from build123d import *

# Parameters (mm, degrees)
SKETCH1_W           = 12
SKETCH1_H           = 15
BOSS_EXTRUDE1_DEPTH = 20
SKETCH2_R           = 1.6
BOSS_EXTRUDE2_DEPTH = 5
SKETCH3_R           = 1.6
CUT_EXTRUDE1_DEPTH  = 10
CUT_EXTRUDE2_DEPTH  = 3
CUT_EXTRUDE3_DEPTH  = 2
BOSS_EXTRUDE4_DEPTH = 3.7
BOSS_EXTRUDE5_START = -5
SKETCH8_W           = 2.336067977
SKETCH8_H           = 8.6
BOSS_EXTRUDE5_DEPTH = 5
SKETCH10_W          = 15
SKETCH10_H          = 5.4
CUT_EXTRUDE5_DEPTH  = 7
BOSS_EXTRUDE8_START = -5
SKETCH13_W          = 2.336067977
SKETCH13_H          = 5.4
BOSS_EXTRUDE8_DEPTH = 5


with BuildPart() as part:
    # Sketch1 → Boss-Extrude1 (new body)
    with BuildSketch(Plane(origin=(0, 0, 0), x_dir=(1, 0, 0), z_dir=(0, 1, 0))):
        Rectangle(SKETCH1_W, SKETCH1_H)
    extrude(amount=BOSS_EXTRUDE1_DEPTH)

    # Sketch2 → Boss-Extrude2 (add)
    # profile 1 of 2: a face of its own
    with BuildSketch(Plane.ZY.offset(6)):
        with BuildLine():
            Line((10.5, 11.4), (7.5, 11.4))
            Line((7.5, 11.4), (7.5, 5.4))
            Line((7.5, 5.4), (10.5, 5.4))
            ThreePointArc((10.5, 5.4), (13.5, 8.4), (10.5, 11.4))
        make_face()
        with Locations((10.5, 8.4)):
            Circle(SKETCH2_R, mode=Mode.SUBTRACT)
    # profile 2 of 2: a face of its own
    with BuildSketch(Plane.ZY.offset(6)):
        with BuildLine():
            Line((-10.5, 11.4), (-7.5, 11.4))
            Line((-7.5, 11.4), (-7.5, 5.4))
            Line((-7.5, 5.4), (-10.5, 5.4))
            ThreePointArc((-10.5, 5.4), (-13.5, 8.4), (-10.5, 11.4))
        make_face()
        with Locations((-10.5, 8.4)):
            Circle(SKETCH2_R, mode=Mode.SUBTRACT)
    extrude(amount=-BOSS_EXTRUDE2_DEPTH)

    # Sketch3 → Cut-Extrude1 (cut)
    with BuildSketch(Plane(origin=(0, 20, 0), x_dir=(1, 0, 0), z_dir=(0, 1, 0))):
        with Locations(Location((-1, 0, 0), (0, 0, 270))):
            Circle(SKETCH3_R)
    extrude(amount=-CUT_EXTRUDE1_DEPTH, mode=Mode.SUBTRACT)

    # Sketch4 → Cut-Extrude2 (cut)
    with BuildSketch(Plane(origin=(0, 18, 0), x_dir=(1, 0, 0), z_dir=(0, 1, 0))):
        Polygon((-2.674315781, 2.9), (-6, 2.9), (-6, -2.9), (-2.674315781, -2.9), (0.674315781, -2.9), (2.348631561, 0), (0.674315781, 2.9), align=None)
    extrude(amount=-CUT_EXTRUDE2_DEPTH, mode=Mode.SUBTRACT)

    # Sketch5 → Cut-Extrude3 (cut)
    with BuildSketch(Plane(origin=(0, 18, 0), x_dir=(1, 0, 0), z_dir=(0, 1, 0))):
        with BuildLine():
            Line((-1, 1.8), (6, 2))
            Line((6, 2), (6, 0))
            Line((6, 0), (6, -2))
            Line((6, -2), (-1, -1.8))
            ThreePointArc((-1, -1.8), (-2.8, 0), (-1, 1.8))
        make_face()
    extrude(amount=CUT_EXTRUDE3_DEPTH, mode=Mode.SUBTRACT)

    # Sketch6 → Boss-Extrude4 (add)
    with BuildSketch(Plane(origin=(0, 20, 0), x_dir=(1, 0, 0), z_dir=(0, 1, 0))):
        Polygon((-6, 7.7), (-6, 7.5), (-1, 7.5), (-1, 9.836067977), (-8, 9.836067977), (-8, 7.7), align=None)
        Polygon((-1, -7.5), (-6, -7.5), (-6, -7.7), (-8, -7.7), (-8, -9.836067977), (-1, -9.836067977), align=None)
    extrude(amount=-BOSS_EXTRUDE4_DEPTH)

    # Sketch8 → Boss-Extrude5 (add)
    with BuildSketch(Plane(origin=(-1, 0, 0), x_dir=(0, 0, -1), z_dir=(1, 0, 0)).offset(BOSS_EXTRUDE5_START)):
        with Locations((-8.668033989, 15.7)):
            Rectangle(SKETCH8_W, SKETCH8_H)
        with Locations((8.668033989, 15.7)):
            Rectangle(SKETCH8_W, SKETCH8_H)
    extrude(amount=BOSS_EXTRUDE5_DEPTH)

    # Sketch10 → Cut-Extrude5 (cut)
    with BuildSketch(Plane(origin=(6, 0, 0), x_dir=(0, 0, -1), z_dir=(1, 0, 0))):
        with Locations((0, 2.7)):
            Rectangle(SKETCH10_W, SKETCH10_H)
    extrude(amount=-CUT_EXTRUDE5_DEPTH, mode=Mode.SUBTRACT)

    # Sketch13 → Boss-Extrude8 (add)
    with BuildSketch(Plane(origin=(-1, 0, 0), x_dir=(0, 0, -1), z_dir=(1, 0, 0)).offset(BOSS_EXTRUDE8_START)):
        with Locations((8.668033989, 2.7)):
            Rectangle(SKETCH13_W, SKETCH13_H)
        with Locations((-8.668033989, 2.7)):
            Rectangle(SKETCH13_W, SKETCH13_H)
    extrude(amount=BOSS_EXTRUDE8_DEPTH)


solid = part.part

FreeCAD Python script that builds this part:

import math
import FreeCAD as App
import Part
import Sketcher

V = App.Vector
Q = App.Units.Quantity

doc = App.newDocument("Part")
body = doc.addObject("PartDesign::Body", "Body")

# Sketch on XZ plane
sketch1 = body.newObject("Sketcher::SketchObject", "Sketch")
sketch1.AttachmentSupport = (doc.getObject("XZ_Plane"), [""])
sketch1.MapMode = "FlatFace"
sketch1.addGeometry(Part.LineSegment(V(-6, -8, 0), V(-6, 8, 0)), False)
sketch1.addGeometry(Part.LineSegment(V(-6, 8, 0), V(6, 8, 0)), False)
sketch1.addGeometry(Part.LineSegment(V(6, 8, 0), V(6, -8, 0)), False)
sketch1.addGeometry(Part.LineSegment(V(6, -8, 0), V(-6, -8, 0)), False)
sketch1.addConstraint(Sketcher.Constraint("Coincident", 0, 2, 1, 1))
sketch1.addConstraint(Sketcher.Constraint("Coincident", 1, 2, 2, 1))
sketch1.addConstraint(Sketcher.Constraint("Coincident", 2, 2, 3, 1))
sketch1.addConstraint(Sketcher.Constraint("Coincident", 3, 2, 0, 1))
sketch1.addConstraint(Sketcher.Constraint("Vertical", 0))
sketch1.addConstraint(Sketcher.Constraint("Horizontal", 1))
sketch1.addConstraint(Sketcher.Constraint("Vertical", 2))
sketch1.addConstraint(Sketcher.Constraint("Horizontal", 3))
sketch1.addConstraint(Sketcher.Constraint("Symmetric", 0, 2, 2, 2, -1, 1))
sketch1.addConstraint(Sketcher.Constraint("DistanceX", 1, 1, 1, 2, 12.0))
sketch1.addConstraint(Sketcher.Constraint("DistanceY", 0, 1, 0, 2, 15.0))
pad1 = body.newObject("PartDesign::Pad", "Pad")
pad1.Profile = sketch1
pad1.Length = 20
pad1.Reversed = True

# Sketch on YZ plane
sketch2 = body.newObject("Sketcher::SketchObject", "Sketch001")
sketch2.AttachmentSupport = (doc.getObject("YZ_Plane"), [""])
sketch2.MapMode = "FlatFace"
sketch2.AttachmentOffset = App.Placement(V(0, 0, -6), App.Rotation())
sketch2.addGeometry(Part.LineSegment(V(11.4, 10.5, 0), V(11.4, 7.5, 0)), False)
sketch2.addGeometry(Part.LineSegment(V(11.4, 7.5, 0), V(5.4, 7.5, 0)), False)
sketch2.addGeometry(Part.LineSegment(V(5.4, 7.5, 0), V(5.4, 10.5, 0)), False)
sketch2.addGeometry(Part.ArcOfCircle(Part.Circle(V(8.4, 10.5, 0), V(0, 0, 1), 3), math.radians(0), math.radians(180)), False)
sketch2.addGeometry(Part.Circle(V(8.4, 10.5, 0), V(0, 0, 1), 1.6), False)
sketch2.addGeometry(Part.LineSegment(V(11.4, -7.5, 0), V(11.4, -10.5, 0)), False)
sketch2.addGeometry(Part.ArcOfCircle(Part.Circle(V(8.4, -10.5, 0), V(0, 0, 1), 3), math.radians(180), math.radians(360)), False)
sketch2.addGeometry(Part.LineSegment(V(5.4, -10.5, 0), V(5.4, -7.5, 0)), False)
sketch2.addGeometry(Part.LineSegment(V(5.4, -7.5, 0), V(11.4, -7.5, 0)), False)
sketch2.addGeometry(Part.Circle(V(8.4, -10.5, 0), V(0, 0, 1), 1.6), False)
sketch2.addConstraint(Sketcher.Constraint("Coincident", 0, 2, 1, 1))
sketch2.addConstraint(Sketcher.Constraint("Coincident", 1, 2, 2, 1))
sketch2.addConstraint(Sketcher.Constraint("Tangent", 2, 2, 3, 2))
sketch2.addConstraint(Sketcher.Constraint("Tangent", 3, 1, 0, 1))
sketch2.addConstraint(Sketcher.Constraint("Tangent", 5, 2, 6, 2))
sketch2.addConstraint(Sketcher.Constraint("Tangent", 6, 1, 7, 1))
sketch2.addConstraint(Sketcher.Constraint("Coincident", 7, 2, 8, 1))
sketch2.addConstraint(Sketcher.Constraint("Coincident", 8, 2, 5, 1))
sketch2.addConstraint(Sketcher.Constraint("Vertical", 0))
sketch2.addConstraint(Sketcher.Constraint("Horizontal", 1))
sketch2.addConstraint(Sketcher.Constraint("Vertical", 2))
sketch2.addConstraint(Sketcher.Constraint("Vertical", 5))
sketch2.addConstraint(Sketcher.Constraint("Vertical", 7))
sketch2.addConstraint(Sketcher.Constraint("Horizontal", 8))
sketch2.addConstraint(Sketcher.Constraint("Coincident", 4, 3, 3, 3))
sketch2.addConstraint(Sketcher.Constraint("Coincident", 9, 3, 6, 3))
sketch2.addConstraint(Sketcher.Constraint("Equal", 3, 6))
sketch2.addConstraint(Sketcher.Constraint("Equal", 4, 9))
sketch2.addConstraint(Sketcher.Constraint("Symmetric", 3, 3, 6, 3, -1))
sketch2.addConstraint(Sketcher.Constraint("Equal", 2, 5))
sketch2.addConstraint(Sketcher.Constraint("Radius", 3, 3.0))
sketch2.addConstraint(Sketcher.Constraint("Diameter", 4, 3.2))
sketch2.addConstraint(Sketcher.Constraint("DistanceY", 0, 2, 0, 1, 3.0))
sketch2.addConstraint(Sketcher.Constraint("DistanceY", 6, 3, 3, 3, 21.0))
sketch2.addConstraint(Sketcher.Constraint("DistanceX", -1, 1, 3, 3, 8.4))
pad2 = body.newObject("PartDesign::Pad", "Pad001")
pad2.Profile = sketch2
pad2.Length = 5

# Sketch on XZ plane
sketch3 = body.newObject("Sketcher::SketchObject", "Sketch002")
sketch3.AttachmentSupport = (doc.getObject("XZ_Plane"), [""])
sketch3.MapMode = "FlatFace"
sketch3.AttachmentOffset = App.Placement(V(0, 0, -20), App.Rotation())
sketch3.addGeometry(Part.Circle(V(-1, 0, 0), V(0, 0, 1), 1.6), False)
sketch3.addConstraint(Sketcher.Constraint("PointOnObject", 0, 3, -1))
sketch3.addConstraint(Sketcher.Constraint("Diameter", 0, 3.2))
sketch3.addConstraint(Sketcher.Constraint("DistanceX", 0, 3, -1, 1, 1.0))
pocket1 = body.newObject("PartDesign::Pocket", "Pocket")
pocket1.Profile = sketch3
pocket1.Length = 10
pocket1.Reversed = True

# Sketch on XZ plane
sketch4 = body.newObject("Sketcher::SketchObject", "Sketch003")
sketch4.AttachmentSupport = (doc.getObject("XZ_Plane"), [""])
sketch4.MapMode = "FlatFace"
sketch4.AttachmentOffset = App.Placement(V(0, 0, -18), App.Rotation())
sketch4.addGeometry(Part.LineSegment(V(-6, -2.9, 0), V(-6, 2.9, 0)), False)
sketch4.addGeometry(Part.LineSegment(V(-6, 2.9, 0), V(0.7, 2.9, 0)), False)
sketch4.addGeometry(Part.LineSegment(V(0.7, 2.9, 0), V(2.3, 0, 0)), False)
sketch4.addGeometry(Part.LineSegment(V(2.3, 0, 0), V(0.7, -2.9, 0)), False)
sketch4.addGeometry(Part.LineSegment(V(0.7, -2.9, 0), V(-6, -2.9, 0)), False)
sketch4.addConstraint(Sketcher.Constraint("Coincident", 0, 2, 1, 1))
sketch4.addConstraint(Sketcher.Constraint("Coincident", 1, 2, 2, 1))
sketch4.addConstraint(Sketcher.Constraint("Coincident", 2, 2, 3, 1))
sketch4.addConstraint(Sketcher.Constraint("Coincident", 3, 2, 4, 1))
sketch4.addConstraint(Sketcher.Constraint("Coincident", 4, 2, 0, 1))
sketch4.addConstraint(Sketcher.Constraint("Vertical", 0))
sketch4.addConstraint(Sketcher.Constraint("Horizontal", 1))
sketch4.addConstraint(Sketcher.Constraint("Horizontal", 4))
sketch4.addConstraint(Sketcher.Constraint("Symmetric", 1, 2, 3, 2, -1))
sketch4.addConstraint(Sketcher.Constraint("PointOnObject", 2, 2, -1))
sketch4.addConstraint(Sketcher.Constraint("Angle", 2, Q("-60 deg")))
sketch4.addConstraint(Sketcher.Constraint("DistanceY", 0, 1, 0, 2, 5.8))
sketch4.addConstraint(Sketcher.Constraint("DistanceX", 0, 2, -1, 1, 6.0))
sketch4.addConstraint(Sketcher.Constraint("DistanceX", 1, 1, 1, 2, 6.674316))
pocket2 = body.newObject("PartDesign::Pocket", "Pocket001")
pocket2.Profile = sketch4
pocket2.Length = 3
pocket2.Reversed = True

# Sketch on XZ plane
sketch5 = body.newObject("Sketcher::SketchObject", "Sketch004")
sketch5.AttachmentSupport = (doc.getObject("XZ_Plane"), [""])
sketch5.MapMode = "FlatFace"
sketch5.AttachmentOffset = App.Placement(V(0, 0, -18), App.Rotation())
sketch5.addGeometry(Part.LineSegment(V(6, -2, 0), V(-1, -1.8, 0)), False)
sketch5.addGeometry(Part.ArcOfCircle(Part.Circle(V(-1, 0, 0), V(0, 0, 1), 1.8), math.radians(90), math.radians(270)), False)
sketch5.addGeometry(Part.LineSegment(V(-1, 1.8, 0), V(6, 2, 0)), False)
sketch5.addGeometry(Part.LineSegment(V(6, 2, 0), V(6, -2, 0)), False)
sketch5.addConstraint(Sketcher.Constraint("Coincident", 0, 2, 1, 2))
sketch5.addConstraint(Sketcher.Constraint("Coincident", 1, 1, 2, 1))
sketch5.addConstraint(Sketcher.Constraint("Coincident", 2, 2, 3, 1))
sketch5.addConstraint(Sketcher.Constraint("Coincident", 3, 2, 0, 1))
sketch5.addConstraint(Sketcher.Constraint("Vertical", 3))
sketch5.addConstraint(Sketcher.Constraint("Symmetric", 0, 2, 1, 1, -1))
sketch5.addConstraint(Sketcher.Constraint("Vertical", 1, 3, 0, 2))
sketch5.addConstraint(Sketcher.Constraint("Equal", 0, 2))
sketch5.addConstraint(Sketcher.Constraint("Radius", 1, 1.8))
sketch5.addConstraint(Sketcher.Constraint("DistanceY", 3, 2, 3, 1, 4.0))
sketch5.addConstraint(Sketcher.Constraint("DistanceX", 1, 3, -1, 1, 1.0))
sketch5.addConstraint(Sketcher.Constraint("DistanceX", -1, 1, 2, 2, 6.0))
pocket3 = body.newObject("PartDesign::Pocket", "Pocket002")
pocket3.Profile = sketch5
pocket3.Length = 2

# Sketch on XZ plane
sketch6 = body.newObject("Sketcher::SketchObject", "Sketch005")
sketch6.AttachmentSupport = (doc.getObject("XZ_Plane"), [""])
sketch6.MapMode = "FlatFace"
sketch6.AttachmentOffset = App.Placement(V(0, 0, -20), App.Rotation())
sketch6.addGeometry(Part.LineSegment(V(-6, -7.7, 0), V(-6, -7.5, 0)), False)
sketch6.addGeometry(Part.LineSegment(V(-6, -7.5, 0), V(-1, -7.5, 0)), False)
sketch6.addGeometry(Part.LineSegment(V(-1, -7.5, 0), V(-1, -9.84, 0)), False)
sketch6.addGeometry(Part.LineSegment(V(-1, -9.84, 0), V(-8, -9.84, 0)), False)
sketch6.addGeometry(Part.LineSegment(V(-8, -9.84, 0), V(-8, -7.7, 0)), False)
sketch6.addGeometry(Part.LineSegment(V(-8, -7.7, 0), V(-6, -7.7, 0)), False)
sketch6.addGeometry(Part.LineSegment(V(-1, 7.5, 0), V(-6, 7.5, 0)), False)
sketch6.addGeometry(Part.LineSegment(V(-6, 7.5, 0), V(-6, 7.7, 0)), False)
sketch6.addGeometry(Part.LineSegment(V(-6, 7.7, 0), V(-8, 7.7, 0)), False)
sketch6.addGeometry(Part.LineSegment(V(-8, 7.7, 0), V(-8, 9.84, 0)), False)
sketch6.addGeometry(Part.LineSegment(V(-8, 9.84, 0), V(-1, 9.84, 0)), False)
sketch6.addGeometry(Part.LineSegment(V(-1, 9.84, 0), V(-1, 7.5, 0)), False)
sketch6.addConstraint(Sketcher.Constraint("Coincident", 0, 2, 1, 1))
sketch6.addConstraint(Sketcher.Constraint("Coincident", 1, 2, 2, 1))
sketch6.addConstraint(Sketcher.Constraint("Coincident", 2, 2, 3, 1))
sketch6.addConstraint(Sketcher.Constraint("Coincident", 3, 2, 4, 1))
sketch6.addConstraint(Sketcher.Constraint("Coincident", 4, 2, 5, 1))
sketch6.addConstraint(Sketcher.Constraint("Coincident", 5, 2, 0, 1))
sketch6.addConstraint(Sketcher.Constraint("Coincident", 6, 2, 7, 1))
sketch6.addConstraint(Sketcher.Constraint("Coincident", 7, 2, 8, 1))
sketch6.addConstraint(Sketcher.Constraint("Coincident", 8, 2, 9, 1))
sketch6.addConstraint(Sketcher.Constraint("Coincident", 9, 2, 10, 1))
sketch6.addConstraint(Sketcher.Constraint("Coincident", 10, 2, 11, 1))
sketch6.addConstraint(Sketcher.Constraint("Coincident", 11, 2, 6, 1))
sketch6.addConstraint(Sketcher.Constraint("Vertical", 0))
sketch6.addConstraint(Sketcher.Constraint("Horizontal", 1))
sketch6.addConstraint(Sketcher.Constraint("Vertical", 2))
sketch6.addConstraint(Sketcher.Constraint("Horizontal", 3))
sketch6.addConstraint(Sketcher.Constraint("Vertical", 4))
sketch6.addConstraint(Sketcher.Constraint("Horizontal", 5))
sketch6.addConstraint(Sketcher.Constraint("Horizontal", 6))
sketch6.addConstraint(Sketcher.Constraint("Vertical", 7))
sketch6.addConstraint(Sketcher.Constraint("Horizontal", 8))
sketch6.addConstraint(Sketcher.Constraint("Vertical", 9))
sketch6.addConstraint(Sketcher.Constraint("Horizontal", 10))
sketch6.addConstraint(Sketcher.Constraint("Vertical", 11))
sketch6.addConstraint(Sketcher.Constraint("Symmetric", 0, 2, 6, 2, -1))
sketch6.addConstraint(Sketcher.Constraint("Symmetric", 4, 2, 8, 2, -1))
sketch6.addConstraint(Sketcher.Constraint("Symmetric", 2, 2, 10, 2, -1))
sketch6.addConstraint(Sketcher.Constraint("DistanceX", 1, 1, 1, 2, 5.0))
sketch6.addConstraint(Sketcher.Constraint("DistanceX", 3, 2, 3, 1, 7.0))
sketch6.addConstraint(Sketcher.Constraint("DistanceY", 0, 1, 0, 2, 0.2))
sketch6.addConstraint(Sketcher.Constraint("DistanceX", 0, 2, -1, 1, 6.0))
sketch6.addConstraint(Sketcher.Constraint("DistanceY", 0, 2, 6, 2, 15.0))
sketch6.addConstraint(Sketcher.Constraint("DistanceY", 2, 2, 2, 1, 2.336068))
pad3 = body.newObject("PartDesign::Pad", "Pad002")
pad3.Profile = sketch6
pad3.Length = 3.7

# Sketch on YZ plane
sketch7 = body.newObject("Sketcher::SketchObject", "Sketch006")
sketch7.AttachmentSupport = (doc.getObject("YZ_Plane"), [""])
sketch7.MapMode = "FlatFace"
sketch7.AttachmentOffset = App.Placement(V(0, 0, -6), App.Rotation())
sketch7.addGeometry(Part.LineSegment(V(20, 9.8, 0), V(11.4, 9.8, 0)), False)
sketch7.addGeometry(Part.LineSegment(V(11.4, 9.8, 0), V(11.4, 7.5, 0)), False)
sketch7.addGeometry(Part.LineSegment(V(11.4, 7.5, 0), V(20, 7.5, 0)), False)
sketch7.addGeometry(Part.LineSegment(V(20, 7.5, 0), V(20, 9.8, 0)), False)
sketch7.addGeometry(Part.LineSegment(V(20, -7.5, 0), V(11.4, -7.5, 0)), False)
sketch7.addGeometry(Part.LineSegment(V(11.4, -7.5, 0), V(11.4, -9.8, 0)), False)
sketch7.addGeometry(Part.LineSegment(V(11.4, -9.8, 0), V(20, -9.8, 0)), False)
sketch7.addGeometry(Part.LineSegment(V(20, -9.8, 0), V(20, -7.5, 0)), False)
sketch7.addConstraint(Sketcher.Constraint("Coincident", 0, 2, 1, 1))
sketch7.addConstraint(Sketcher.Constraint("Coincident", 1, 2, 2, 1))
sketch7.addConstraint(Sketcher.Constraint("Coincident", 2, 2, 3, 1))
sketch7.addConstraint(Sketcher.Constraint("Coincident", 3, 2, 0, 1))
sketch7.addConstraint(Sketcher.Constraint("Coincident", 4, 2, 5, 1))
sketch7.addConstraint(Sketcher.Constraint("Coincident", 5, 2, 6, 1))
sketch7.addConstraint(Sketcher.Constraint("Coincident", 6, 2, 7, 1))
sketch7.addConstraint(Sketcher.Constraint("Coincident", 7, 2, 4, 1))
sketch7.addConstraint(Sketcher.Constraint("Horizontal", 0))
sketch7.addConstraint(Sketcher.Constraint("Vertical", 1))
sketch7.addConstraint(Sketcher.Constraint("Horizontal", 2))
sketch7.addConstraint(Sketcher.Constraint("Vertical", 3))
sketch7.addConstraint(Sketcher.Constraint("Horizontal", 4))
sketch7.addConstraint(Sketcher.Constraint("Vertical", 5))
sketch7.addConstraint(Sketcher.Constraint("Horizontal", 6))
sketch7.addConstraint(Sketcher.Constraint("Vertical", 7))
sketch7.addConstraint(Sketcher.Constraint("Symmetric", 1, 2, 4, 2, -1))
sketch7.addConstraint(Sketcher.Constraint("Symmetric", 3, 2, 6, 2, -1))
sketch7.addConstraint(Sketcher.Constraint("DistanceX", 0, 2, 0, 1, 8.6))
sketch7.addConstraint(Sketcher.Constraint("DistanceX", -1, 1, 2, 2, 20.0))
sketch7.addConstraint(Sketcher.Constraint("DistanceY", 4, 2, 1, 2, 15.0))
sketch7.addConstraint(Sketcher.Constraint("DistanceY", 1, 2, 1, 1, 2.336068))
pad4 = body.newObject("PartDesign::Pad", "Pad003")
pad4.Profile = sketch7
pad4.Length = 5

# Sketch on YZ plane
sketch8 = body.newObject("Sketcher::SketchObject", "Sketch007")
sketch8.AttachmentSupport = (doc.getObject("YZ_Plane"), [""])
sketch8.MapMode = "FlatFace"
sketch8.AttachmentOffset = App.Placement(V(0, 0, 6), App.Rotation())
sketch8.addGeometry(Part.LineSegment(V(5, 8, 0), V(0, 8, 0)), False)
sketch8.addGeometry(Part.LineSegment(V(0, 8, 0), V(0, -8, 0)), False)
sketch8.addGeometry(Part.LineSegment(V(0, -8, 0), V(5, -8, 0)), False)
sketch8.addGeometry(Part.LineSegment(V(5, -8, 0), V(5, 8, 0)), False)
sketch8.addConstraint(Sketcher.Constraint("Coincident", 0, 2, 1, 1))
sketch8.addConstraint(Sketcher.Constraint("Coincident", 1, 2, 2, 1))
sketch8.addConstraint(Sketcher.Constraint("Coincident", 2, 2, 3, 1))
sketch8.addConstraint(Sketcher.Constraint("Coincident", 3, 2, 0, 1))
sketch8.addConstraint(Sketcher.Constraint("Horizontal", 0))
sketch8.addConstraint(Sketcher.Constraint("Vertical", 1))
sketch8.addConstraint(Sketcher.Constraint("Horizontal", 2))
sketch8.addConstraint(Sketcher.Constraint("Vertical", 3))
sketch8.addConstraint(Sketcher.Constraint("Symmetric", 0, 2, 1, 2, -1, 1))
sketch8.addConstraint(Sketcher.Constraint("DistanceY", 1, 2, 1, 1, 15.0))
sketch8.addConstraint(Sketcher.Constraint("DistanceX", 0, 2, 0, 1, 5.4))
pocket4 = body.newObject("PartDesign::Pocket", "Pocket003")
pocket4.Profile = sketch8
pocket4.Length = 7

# Sketch on YZ plane
sketch9 = body.newObject("Sketcher::SketchObject", "Sketch008")
sketch9.AttachmentSupport = (doc.getObject("YZ_Plane"), [""])
sketch9.MapMode = "FlatFace"
sketch9.AttachmentOffset = App.Placement(V(0, 0, -6), App.Rotation())
sketch9.addGeometry(Part.LineSegment(V(5.4, -7.5, 0), V(0, -7.5, 0)), False)
sketch9.addGeometry(Part.LineSegment(V(0, -7.5, 0), V(0, -9.8, 0)), False)
sketch9.addGeometry(Part.LineSegment(V(0, -9.8, 0), V(5.4, -9.8, 0)), False)
sketch9.addGeometry(Part.LineSegment(V(5.4, -9.8, 0), V(5.4, -7.5, 0)), False)
sketch9.addGeometry(Part.LineSegment(V(5.4, 9.8, 0), V(0, 9.8, 0)), False)
sketch9.addGeometry(Part.LineSegment(V(0, 9.8, 0), V(0, 7.5, 0)), False)
sketch9.addGeometry(Part.LineSegment(V(0, 7.5, 0), V(5.4, 7.5, 0)), False)
sketch9.addGeometry(Part.LineSegment(V(5.4, 7.5, 0), V(5.4, 9.8, 0)), False)
sketch9.addConstraint(Sketcher.Constraint("Coincident", 0, 2, 1, 1))
sketch9.addConstraint(Sketcher.Constraint("Coincident", 1, 2, 2, 1))
sketch9.addConstraint(Sketcher.Constraint("Coincident", 2, 2, 3, 1))
sketch9.addConstraint(Sketcher.Constraint("Coincident", 3, 2, 0, 1))
sketch9.addConstraint(Sketcher.Constraint("Coincident", 4, 2, 5, 1))
sketch9.addConstraint(Sketcher.Constraint("Coincident", 5, 2, 6, 1))
sketch9.addConstraint(Sketcher.Constraint("Coincident", 6, 2, 7, 1))
sketch9.addConstraint(Sketcher.Constraint("Coincident", 7, 2, 4, 1))
sketch9.addConstraint(Sketcher.Constraint("Horizontal", 0))
sketch9.addConstraint(Sketcher.Constraint("Vertical", 1))
sketch9.addConstraint(Sketcher.Constraint("Horizontal", 2))
sketch9.addConstraint(Sketcher.Constraint("Vertical", 3))
sketch9.addConstraint(Sketcher.Constraint("Horizontal", 4))
sketch9.addConstraint(Sketcher.Constraint("Vertical", 5))
sketch9.addConstraint(Sketcher.Constraint("Horizontal", 6))
sketch9.addConstraint(Sketcher.Constraint("Vertical", 7))
sketch9.addConstraint(Sketcher.Constraint("Symmetric", 1, 2, 4, 2, -1, 1))
sketch9.addConstraint(Sketcher.Constraint("Symmetric", 0, 2, 5, 2, -1))
sketch9.addConstraint(Sketcher.Constraint("Vertical", 3, 2, 6, 2))
sketch9.addConstraint(Sketcher.Constraint("DistanceX", 0, 2, 0, 1, 5.4))
sketch9.addConstraint(Sketcher.Constraint("DistanceY", 0, 2, 5, 2, 15.0))
sketch9.addConstraint(Sketcher.Constraint("DistanceY", 1, 2, 1, 1, 2.336068))
pad5 = body.newObject("PartDesign::Pad", "Pad004")
pad5.Profile = sketch9
pad5.Length = 5

doc.recompute()
